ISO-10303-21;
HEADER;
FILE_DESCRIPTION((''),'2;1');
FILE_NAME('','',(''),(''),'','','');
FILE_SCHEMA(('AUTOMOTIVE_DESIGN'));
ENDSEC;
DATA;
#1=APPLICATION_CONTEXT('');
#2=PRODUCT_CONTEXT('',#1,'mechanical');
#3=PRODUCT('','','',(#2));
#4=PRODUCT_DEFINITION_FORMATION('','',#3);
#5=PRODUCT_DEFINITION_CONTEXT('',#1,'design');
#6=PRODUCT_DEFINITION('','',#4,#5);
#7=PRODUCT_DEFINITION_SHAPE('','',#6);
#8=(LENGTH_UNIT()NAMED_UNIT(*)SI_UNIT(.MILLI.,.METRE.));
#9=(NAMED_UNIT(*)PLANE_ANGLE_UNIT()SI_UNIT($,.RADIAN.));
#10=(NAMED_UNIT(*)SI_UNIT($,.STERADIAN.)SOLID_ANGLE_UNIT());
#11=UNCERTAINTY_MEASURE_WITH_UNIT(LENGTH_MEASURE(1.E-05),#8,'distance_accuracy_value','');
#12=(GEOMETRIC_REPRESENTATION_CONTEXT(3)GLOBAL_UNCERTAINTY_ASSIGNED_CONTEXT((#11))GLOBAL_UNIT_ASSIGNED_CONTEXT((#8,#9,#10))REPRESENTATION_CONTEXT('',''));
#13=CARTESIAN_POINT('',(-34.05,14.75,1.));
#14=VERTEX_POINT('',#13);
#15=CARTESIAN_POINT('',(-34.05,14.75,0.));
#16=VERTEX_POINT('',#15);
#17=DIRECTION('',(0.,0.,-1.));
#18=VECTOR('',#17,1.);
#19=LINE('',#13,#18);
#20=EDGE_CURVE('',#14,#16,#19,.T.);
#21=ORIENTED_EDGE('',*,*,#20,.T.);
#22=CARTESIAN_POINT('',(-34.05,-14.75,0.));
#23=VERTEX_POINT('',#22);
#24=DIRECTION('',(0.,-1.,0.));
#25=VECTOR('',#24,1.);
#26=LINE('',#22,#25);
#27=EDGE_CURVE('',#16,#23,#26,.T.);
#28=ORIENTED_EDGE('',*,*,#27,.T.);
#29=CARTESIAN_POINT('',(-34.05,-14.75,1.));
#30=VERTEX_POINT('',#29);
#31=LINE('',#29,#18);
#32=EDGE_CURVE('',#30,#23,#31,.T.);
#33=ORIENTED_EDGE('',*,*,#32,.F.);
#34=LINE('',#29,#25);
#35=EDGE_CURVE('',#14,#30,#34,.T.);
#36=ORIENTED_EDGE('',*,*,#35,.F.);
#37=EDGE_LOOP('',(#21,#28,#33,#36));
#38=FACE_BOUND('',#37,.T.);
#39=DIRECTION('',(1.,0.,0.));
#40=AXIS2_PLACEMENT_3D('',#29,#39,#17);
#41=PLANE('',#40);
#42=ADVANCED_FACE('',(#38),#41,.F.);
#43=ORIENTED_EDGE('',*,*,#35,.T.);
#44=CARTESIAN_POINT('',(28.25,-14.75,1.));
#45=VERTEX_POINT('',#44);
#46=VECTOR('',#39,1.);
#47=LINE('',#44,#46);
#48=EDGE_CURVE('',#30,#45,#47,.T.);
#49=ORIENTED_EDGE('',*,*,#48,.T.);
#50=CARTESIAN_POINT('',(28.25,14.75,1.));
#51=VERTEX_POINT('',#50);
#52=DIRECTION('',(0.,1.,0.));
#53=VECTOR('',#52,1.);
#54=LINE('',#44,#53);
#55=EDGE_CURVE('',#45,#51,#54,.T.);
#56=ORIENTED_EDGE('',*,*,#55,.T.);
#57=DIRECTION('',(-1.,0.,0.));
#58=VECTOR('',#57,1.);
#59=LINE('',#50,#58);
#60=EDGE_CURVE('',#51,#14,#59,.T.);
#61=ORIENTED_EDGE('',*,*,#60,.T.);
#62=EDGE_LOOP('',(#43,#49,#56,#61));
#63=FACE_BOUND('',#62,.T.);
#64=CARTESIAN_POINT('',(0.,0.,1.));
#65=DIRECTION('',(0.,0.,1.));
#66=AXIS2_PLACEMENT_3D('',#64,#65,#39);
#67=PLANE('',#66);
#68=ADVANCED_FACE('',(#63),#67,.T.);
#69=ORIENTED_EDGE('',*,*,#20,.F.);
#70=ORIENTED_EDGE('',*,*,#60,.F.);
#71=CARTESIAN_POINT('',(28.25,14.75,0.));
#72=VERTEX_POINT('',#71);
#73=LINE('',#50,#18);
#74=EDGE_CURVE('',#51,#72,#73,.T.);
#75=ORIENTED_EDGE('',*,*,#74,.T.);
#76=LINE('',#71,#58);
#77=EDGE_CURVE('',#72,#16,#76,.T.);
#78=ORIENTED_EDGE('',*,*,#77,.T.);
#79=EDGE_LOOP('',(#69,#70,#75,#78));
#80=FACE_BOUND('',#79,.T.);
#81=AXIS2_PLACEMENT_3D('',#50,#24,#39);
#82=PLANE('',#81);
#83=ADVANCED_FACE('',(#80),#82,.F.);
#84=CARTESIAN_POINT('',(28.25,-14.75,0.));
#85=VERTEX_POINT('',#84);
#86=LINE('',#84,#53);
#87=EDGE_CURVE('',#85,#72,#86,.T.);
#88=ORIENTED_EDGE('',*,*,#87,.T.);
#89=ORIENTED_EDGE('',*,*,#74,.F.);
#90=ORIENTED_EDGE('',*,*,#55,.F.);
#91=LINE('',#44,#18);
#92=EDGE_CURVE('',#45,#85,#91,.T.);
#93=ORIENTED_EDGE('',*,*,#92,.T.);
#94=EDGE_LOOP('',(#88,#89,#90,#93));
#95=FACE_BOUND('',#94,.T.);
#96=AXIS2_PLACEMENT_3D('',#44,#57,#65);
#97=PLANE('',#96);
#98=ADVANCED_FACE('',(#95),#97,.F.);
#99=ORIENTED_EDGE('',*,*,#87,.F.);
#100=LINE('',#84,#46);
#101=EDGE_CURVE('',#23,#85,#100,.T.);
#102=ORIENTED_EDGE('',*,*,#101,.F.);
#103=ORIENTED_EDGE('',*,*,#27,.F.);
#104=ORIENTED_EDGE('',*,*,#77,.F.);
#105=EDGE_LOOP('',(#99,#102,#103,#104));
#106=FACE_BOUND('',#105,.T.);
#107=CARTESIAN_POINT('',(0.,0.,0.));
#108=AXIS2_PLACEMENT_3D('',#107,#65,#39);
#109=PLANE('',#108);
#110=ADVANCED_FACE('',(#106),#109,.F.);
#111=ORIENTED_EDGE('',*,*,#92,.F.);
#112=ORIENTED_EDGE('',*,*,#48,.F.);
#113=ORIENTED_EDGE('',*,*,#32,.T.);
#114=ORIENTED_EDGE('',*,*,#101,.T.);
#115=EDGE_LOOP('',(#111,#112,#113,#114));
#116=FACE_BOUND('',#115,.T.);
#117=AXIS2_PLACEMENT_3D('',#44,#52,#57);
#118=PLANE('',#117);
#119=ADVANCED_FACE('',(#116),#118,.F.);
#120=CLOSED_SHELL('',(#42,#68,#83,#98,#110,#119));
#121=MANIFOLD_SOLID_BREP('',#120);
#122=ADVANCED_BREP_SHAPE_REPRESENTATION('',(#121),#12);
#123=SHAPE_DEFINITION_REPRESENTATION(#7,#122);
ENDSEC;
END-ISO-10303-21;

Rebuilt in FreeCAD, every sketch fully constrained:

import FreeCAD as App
import Part
import Sketcher
from FreeCAD import Vector
Q = App.Units.Quantity


def add_polygon(sketch, points):
    """Adds a closed chain of lines whose ends are joined by coincident constraints."""
    first, n = sketch.GeometryCount, len(points)
    for a, b in zip(points, points[1:] + points[:1]):
        sketch.addGeometry(Part.LineSegment(App.Vector(*a, 0), App.Vector(*b, 0)), False)
    for i in range(n):
        sketch.addConstraint(Sketcher.Constraint("Coincident", first + i, 2, first + (i + 1) % n, 1))

doc = App.newDocument("Part")
body = doc.addObject("PartDesign::Body", "Body")

# Sketch on XY plane
sketch1 = body.newObject("Sketcher::SketchObject", "Sketch")
sketch1.AttachmentSupport = (doc.getObject("XY_Plane"), [""])
sketch1.MapMode = "FlatFace"
add_polygon(sketch1, [(-34, 15), (-34, -15), (28, -15), (28, 15)])  # lines 0-3
sketch1.addConstraint(Sketcher.Constraint("Vertical", 0))
sketch1.addConstraint(Sketcher.Constraint("Horizontal", 1))
sketch1.addConstraint(Sketcher.Constraint("Vertical", 2))
sketch1.addConstraint(Sketcher.Constraint("Horizontal", 3))
sketch1.addConstraint(Sketcher.Constraint("DistanceX", 1, 1, 1, 2, Q("62.3 mm")))
sketch1.addConstraint(Sketcher.Constraint("DistanceY", 0, 2, 0, 1, Q("29.5 mm")))
sketch1.addConstraint(Sketcher.Constraint("DistanceX", 0, 2, -1, 1, Q("34.05 mm")))
sketch1.addConstraint(Sketcher.Constraint("DistanceY", 0, 2, -1, 1, Q("14.75 mm")))
pad1 = body.newObject("PartDesign::Pad", "Pad")
pad1.Profile = sketch1
pad1.Length = 1

doc.recompute()
